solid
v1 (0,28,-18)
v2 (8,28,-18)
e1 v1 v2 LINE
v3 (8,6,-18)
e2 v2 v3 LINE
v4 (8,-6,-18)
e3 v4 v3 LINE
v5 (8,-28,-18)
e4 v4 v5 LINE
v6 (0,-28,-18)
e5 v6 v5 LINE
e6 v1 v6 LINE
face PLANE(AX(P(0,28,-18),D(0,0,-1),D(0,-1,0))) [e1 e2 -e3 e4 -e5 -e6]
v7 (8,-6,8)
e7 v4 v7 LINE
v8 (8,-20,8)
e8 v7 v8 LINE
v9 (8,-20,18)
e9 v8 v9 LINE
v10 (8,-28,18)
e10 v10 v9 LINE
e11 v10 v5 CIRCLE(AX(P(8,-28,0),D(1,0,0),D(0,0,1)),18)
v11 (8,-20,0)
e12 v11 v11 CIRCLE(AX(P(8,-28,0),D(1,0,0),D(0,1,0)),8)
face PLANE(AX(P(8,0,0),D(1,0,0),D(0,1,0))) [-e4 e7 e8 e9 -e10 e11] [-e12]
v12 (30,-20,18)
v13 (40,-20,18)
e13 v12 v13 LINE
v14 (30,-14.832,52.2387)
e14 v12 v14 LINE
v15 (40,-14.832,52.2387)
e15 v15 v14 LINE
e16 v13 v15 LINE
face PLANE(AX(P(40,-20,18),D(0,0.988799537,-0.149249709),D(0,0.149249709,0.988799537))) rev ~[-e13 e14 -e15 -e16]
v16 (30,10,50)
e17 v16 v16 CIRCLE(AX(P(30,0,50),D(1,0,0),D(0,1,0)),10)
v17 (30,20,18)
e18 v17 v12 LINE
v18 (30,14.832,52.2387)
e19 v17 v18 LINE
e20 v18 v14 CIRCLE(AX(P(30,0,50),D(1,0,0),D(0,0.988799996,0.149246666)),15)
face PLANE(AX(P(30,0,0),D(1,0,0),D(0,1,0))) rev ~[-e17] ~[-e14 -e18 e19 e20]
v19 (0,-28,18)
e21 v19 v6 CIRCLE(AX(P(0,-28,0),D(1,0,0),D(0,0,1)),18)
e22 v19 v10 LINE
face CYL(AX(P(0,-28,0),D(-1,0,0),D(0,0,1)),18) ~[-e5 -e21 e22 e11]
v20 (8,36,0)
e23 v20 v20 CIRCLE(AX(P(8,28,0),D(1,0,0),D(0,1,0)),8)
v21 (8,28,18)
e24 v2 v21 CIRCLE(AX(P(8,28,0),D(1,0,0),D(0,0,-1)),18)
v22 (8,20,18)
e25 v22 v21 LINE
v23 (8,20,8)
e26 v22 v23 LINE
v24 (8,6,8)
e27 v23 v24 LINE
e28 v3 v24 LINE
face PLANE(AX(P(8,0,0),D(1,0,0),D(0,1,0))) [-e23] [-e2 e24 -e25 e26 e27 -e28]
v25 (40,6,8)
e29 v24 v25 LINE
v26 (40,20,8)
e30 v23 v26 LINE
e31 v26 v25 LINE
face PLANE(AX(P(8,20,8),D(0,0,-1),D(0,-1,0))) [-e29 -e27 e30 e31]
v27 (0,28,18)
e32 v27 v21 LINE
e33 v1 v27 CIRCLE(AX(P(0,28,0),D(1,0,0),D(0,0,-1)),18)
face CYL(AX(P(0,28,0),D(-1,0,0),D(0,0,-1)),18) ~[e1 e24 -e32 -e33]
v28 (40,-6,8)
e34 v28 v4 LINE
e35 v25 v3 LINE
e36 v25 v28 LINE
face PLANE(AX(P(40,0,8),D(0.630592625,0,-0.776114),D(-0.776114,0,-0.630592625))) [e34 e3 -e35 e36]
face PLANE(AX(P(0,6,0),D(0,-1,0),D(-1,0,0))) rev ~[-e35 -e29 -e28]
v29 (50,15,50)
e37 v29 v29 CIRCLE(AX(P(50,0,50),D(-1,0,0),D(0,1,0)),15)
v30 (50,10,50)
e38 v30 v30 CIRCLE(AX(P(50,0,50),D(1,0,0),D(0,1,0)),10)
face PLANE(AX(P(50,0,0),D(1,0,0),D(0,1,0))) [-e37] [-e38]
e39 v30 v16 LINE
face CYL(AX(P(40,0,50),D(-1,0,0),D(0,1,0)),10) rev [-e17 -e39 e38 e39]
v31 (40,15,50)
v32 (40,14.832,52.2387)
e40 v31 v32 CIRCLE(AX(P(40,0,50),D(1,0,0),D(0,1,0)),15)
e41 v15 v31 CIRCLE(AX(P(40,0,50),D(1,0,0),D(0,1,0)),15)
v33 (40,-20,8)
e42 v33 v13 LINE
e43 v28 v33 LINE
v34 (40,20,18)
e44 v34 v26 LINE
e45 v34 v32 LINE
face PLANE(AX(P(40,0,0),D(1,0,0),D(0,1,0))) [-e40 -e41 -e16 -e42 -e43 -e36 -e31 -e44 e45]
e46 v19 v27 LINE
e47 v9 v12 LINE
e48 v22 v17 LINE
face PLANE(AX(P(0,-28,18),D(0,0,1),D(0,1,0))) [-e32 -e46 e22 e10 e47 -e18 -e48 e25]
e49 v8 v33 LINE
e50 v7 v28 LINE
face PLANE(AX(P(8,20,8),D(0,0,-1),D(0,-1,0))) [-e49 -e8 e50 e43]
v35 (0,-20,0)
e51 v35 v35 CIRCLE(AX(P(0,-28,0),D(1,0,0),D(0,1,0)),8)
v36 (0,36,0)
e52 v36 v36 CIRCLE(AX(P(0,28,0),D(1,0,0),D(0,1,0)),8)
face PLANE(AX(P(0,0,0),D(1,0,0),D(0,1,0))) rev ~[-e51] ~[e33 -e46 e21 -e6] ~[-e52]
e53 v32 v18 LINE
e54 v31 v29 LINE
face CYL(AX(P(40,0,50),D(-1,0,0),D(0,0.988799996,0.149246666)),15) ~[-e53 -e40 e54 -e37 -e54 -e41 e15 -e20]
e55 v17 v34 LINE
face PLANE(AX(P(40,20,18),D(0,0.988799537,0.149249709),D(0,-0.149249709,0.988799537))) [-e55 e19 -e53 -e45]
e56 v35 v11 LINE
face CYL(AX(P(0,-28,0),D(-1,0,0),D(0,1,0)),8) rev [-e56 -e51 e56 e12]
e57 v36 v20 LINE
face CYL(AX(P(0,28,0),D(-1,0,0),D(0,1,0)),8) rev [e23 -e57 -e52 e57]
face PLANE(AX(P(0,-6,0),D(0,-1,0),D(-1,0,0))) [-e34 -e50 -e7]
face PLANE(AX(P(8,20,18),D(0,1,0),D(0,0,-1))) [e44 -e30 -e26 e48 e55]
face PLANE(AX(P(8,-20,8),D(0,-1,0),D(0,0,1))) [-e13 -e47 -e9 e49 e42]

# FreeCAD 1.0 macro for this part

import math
import FreeCAD as App
import Part
import Sketcher
from FreeCAD import Vector


def add_polygon(sketch, points):
    """Adds a closed chain of lines whose ends are joined by coincident constraints."""
    first, n = sketch.GeometryCount, len(points)
    for a, b in zip(points, points[1:] + points[:1]):
        sketch.addGeometry(Part.LineSegment(App.Vector(*a, 0), App.Vector(*b, 0)), False)
    for i in range(n):
        sketch.addConstraint(Sketcher.Constraint("Coincident", first + i, 2, first + (i + 1) % n, 1))

doc = App.newDocument("Part")
body = doc.addObject("PartDesign::Body", "Body")

sketch1 = body.newObject("Sketcher::SketchObject", "Sketch")
sketch1.AttachmentSupport = (doc.getObject("YZ_Plane"), [""])
sketch1.MapMode = "FlatFace"
sketch1.addGeometry([
    Part.LineSegment(Vector(-28, -18, 0), Vector(28, -18, 0)),
    Part.ArcOfCircle(Part.Circle(Vector(28, 0, 0), Vector(0, 0, 1), 18), math.radians(-90), math.radians(90)),
    Part.LineSegment(Vector(28, 18, 0), Vector(-28, 18, 0)),
    Part.ArcOfCircle(Part.Circle(Vector(-28, 0, 0), Vector(0, 0, 1), 18), math.radians(90), math.radians(270)),
    Part.Circle(Vector(-28, 0, 0), Vector(0, 0, 1), 8),
    Part.Circle(Vector(28, 0, 0), Vector(0, 0, 1), 8),
], False)
sketch1.addConstraint([
    Sketcher.Constraint("Tangent", 0, 2, 1, 1),
    Sketcher.Constraint("Tangent", 1, 2, 2, 1),
    Sketcher.Constraint("Tangent", 2, 2, 3, 1),
    Sketcher.Constraint("Tangent", 3, 2, 0, 1),
    Sketcher.Constraint("Horizontal", 0),
    Sketcher.Constraint("Horizontal", 2),
    Sketcher.Constraint("Coincident", 4, 3, 3, 3),
    Sketcher.Constraint("Coincident", 5, 3, 1, 3),
    Sketcher.Constraint("Equal", 4, 5),
    Sketcher.Constraint("Symmetric", 1, 3, 3, 3, -1, 1),
    Sketcher.Constraint("Diameter", 4, 16.0),
    Sketcher.Constraint("Radius", 1, 18.0),
    Sketcher.Constraint("DistanceX", 0, 1, 0, 2, 56.0),
])
pad1 = body.newObject("PartDesign::Pad", "Pad")
pad1.Profile = sketch1
pad1.Length = 8

sketch2 = body.newObject("Sketcher::SketchObject", "Sketch001")
sketch2.AttachmentSupport = (doc.getObject("YZ_Plane"), [""])
sketch2.MapMode = "FlatFace"
sketch2.AttachmentOffset = App.Placement(Vector(0, 0, 8), App.Rotation())
add_polygon(sketch2, [(20, 18), (-20, 18), (-20, 8), (20, 8)])
sketch2.addConstraint([
    Sketcher.Constraint("Horizontal", 0),
    Sketcher.Constraint("Vertical", 1),
    Sketcher.Constraint("Horizontal", 2),
    Sketcher.Constraint("Vertical", 3),
    Sketcher.Constraint("DistanceX", 0, 2, 0, 1, 40.0),
    Sketcher.Constraint("DistanceY", 1, 2, 1, 1, 10.0),
    Sketcher.Constraint("DistanceX", 0, 2, -1, 1, 20.0),
    Sketcher.Constraint("DistanceY", -1, 1, 0, 2, 18.0),
])
pad2 = body.newObject("PartDesign::Pad", "Pad001")
pad2.Profile = sketch2
pad2.Length = 32

sketch3 = body.newObject("Sketcher::SketchObject", "Sketch002")
sketch3.AttachmentSupport = (doc.getObject("YZ_Plane"), [""])
sketch3.MapMode = "FlatFace"
sketch3.AttachmentOffset = App.Placement(Vector(0, 0, 40), App.Rotation())
sketch3.addGeometry([
    Part.LineSegment(Vector(-20, 18, 0), Vector(20, 18, 0)),
    Part.LineSegment(Vector(20, 18, 0), Vector(15, 52, 0)),
    Part.ArcOfCircle(Part.Circle(Vector(0, 50, 0), Vector(0, 0, 1), 15), math.radians(9), math.radians(171)),
    Part.LineSegment(Vector(-15, 52, 0), Vector(-20, 18, 0)),
    Part.Circle(Vector(0, 50, 0), Vector(0, 0, 1), 10),
], False)
sketch3.addConstraint([
    Sketcher.Constraint("Coincident", 0, 2, 1, 1),
    Sketcher.Constraint("Tangent", 1, 2, 2, 1),
    Sketcher.Constraint("Tangent", 2, 2, 3, 1),
    Sketcher.Constraint("Coincident", 3, 2, 0, 1),
    Sketcher.Constraint("Horizontal", 0),
    Sketcher.Constraint("Coincident", 4, 3, 2, 3),
    Sketcher.Constraint("Symmetric", 1, 2, 2, 2, -2),
    Sketcher.Constraint("Diameter", 4, 20.0),
    Sketcher.Constraint("Radius", 2, 15.0),
    Sketcher.Constraint("DistanceX", -1, 1, 0, 2, 20.0),
    Sketcher.Constraint("DistanceY", 0, 2, 2, 3, 32.0),
    Sketcher.Constraint("DistanceY", -1, 1, 2, 3, 50.0),
])
pad3 = body.newObject("PartDesign::Pad", "Pad002")
pad3.Profile = sketch3
pad3.Length = 10
pad3.Reversed = True

sketch4 = body.newObject("Sketcher::SketchObject", "Sketch003")
sketch4.AttachmentSupport = (doc.getObject("YZ_Plane"), [""])
sketch4.MapMode = "FlatFace"
sketch4.AttachmentOffset = App.Placement(Vector(0, 0, 40), App.Rotation())
sketch4.addGeometry([
    Part.Circle(Vector(0, 50, 0), Vector(0, 0, 1), 15),
    Part.Circle(Vector(0, 50, 0), Vector(0, 0, 1), 10),
], False)
sketch4.addConstraint([
    Sketcher.Constraint("Coincident", 1, 3, 0, 3),
    Sketcher.Constraint("PointOnObject", 0, 3, -2),
    Sketcher.Constraint("Diameter", 0, 30.0),
    Sketcher.Constraint("Diameter", 1, 20.0),
    Sketcher.Constraint("DistanceY", -1, 1, 0, 3, 50.0),
])
pad4 = body.newObject("PartDesign::Pad", "Pad003")
pad4.Profile = sketch4
pad4.Length = 10

sketch5 = body.newObject("Sketcher::SketchObject", "Sketch004")
sketch5.AttachmentSupport = (doc.getObject("XZ_Plane"), [""])
sketch5.MapMode = "FlatFace"
add_polygon(sketch5, [(8, -18), (40, 8), (8, 8)])
sketch5.addConstraint([
    Sketcher.Constraint("Horizontal", 1),
    Sketcher.Constraint("Vertical", 2),
    Sketcher.Constraint("DistanceX", 1, 2, 1, 1, 32.0),
    Sketcher.Constraint("DistanceY", 2, 2, 2, 1, 26.0),
    Sketcher.Constraint("DistanceX", -1, 1, 0, 2, 40.0),
    Sketcher.Constraint("DistanceY", -1, 1, 0, 2, 8.0),
])
pad5 = body.newObject("PartDesign::Pad", "Pad004")
pad5.Profile = sketch5
pad5.Type = "TwoLengths"
pad5.Length = 6
pad5.Length2 = 6

doc.recompute()
